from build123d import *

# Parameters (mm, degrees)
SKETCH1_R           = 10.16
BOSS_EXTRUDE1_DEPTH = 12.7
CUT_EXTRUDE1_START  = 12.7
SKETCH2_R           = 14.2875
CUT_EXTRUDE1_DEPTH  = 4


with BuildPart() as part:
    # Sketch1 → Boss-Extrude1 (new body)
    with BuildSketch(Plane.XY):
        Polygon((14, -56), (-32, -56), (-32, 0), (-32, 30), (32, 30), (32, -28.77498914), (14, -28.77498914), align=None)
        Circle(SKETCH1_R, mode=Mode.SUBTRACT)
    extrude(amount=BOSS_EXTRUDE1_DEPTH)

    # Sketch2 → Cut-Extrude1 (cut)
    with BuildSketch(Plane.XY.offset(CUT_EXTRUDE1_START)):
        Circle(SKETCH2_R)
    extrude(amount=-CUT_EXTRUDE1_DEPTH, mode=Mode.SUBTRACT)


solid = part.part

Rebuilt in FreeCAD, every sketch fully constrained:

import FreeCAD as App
import Part
import Sketcher
from FreeCAD import Vector
Q = App.Units.Quantity


def add_polygon(sketch, points):
    """Adds a closed chain of lines whose ends are joined by coincident constraints."""
    first, n = sketch.GeometryCount, len(points)
    for a, b in zip(points, points[1:] + points[:1]):
        sketch.addGeometry(Part.LineSegment(App.Vector(*a, 0), App.Vector(*b, 0)), False)
    for i in range(n):
        sketch.addConstraint(Sketcher.Constraint("Coincident", first + i, 2, first + (i + 1) % n, 1))

doc = App.newDocument("Part")
params = doc.addObject("Spreadsheet::Sheet", "Params")
for row, (alias, value) in enumerate([
    ("sketch1_diameter", "20.32 mm"),
    ("sketch1_width", "46 mm"),
    ("sketch1_width2", "18 mm"),
    ("sketch1_height", "86 mm"),
    ("pad1_length", "12.7 mm"),
    ("pocket1_length", "4 mm"),
], start=1):
    params.set(f"A{row}", alias)
    params.set(f"B{row}", "=" + value)
    params.setAlias(f"B{row}", alias)

body = doc.addObject("PartDesign::Body", "Body")

# Sketch on XY plane
sketch1 = body.newObject("Sketcher::SketchObject", "Sketch")
sketch1.AttachmentSupport = (doc.getObject("XY_Plane"), [""])
sketch1.MapMode = "FlatFace"
add_polygon(sketch1, [(-32, -56), (14, -56), (14, -29), (32, -29), (32, 30), (-32, 30)])  # lines 0-5
sketch1.addGeometry(Part.Circle(Vector(0, 0, 0), Vector(0, 0, 1), 10), False)  # 6
sketch1.addConstraint([
    Sketcher.Constraint("Horizontal", 0),
    Sketcher.Constraint("Vertical", 1),
    Sketcher.Constraint("Horizontal", 2),
    Sketcher.Constraint("Vertical", 3),
    Sketcher.Constraint("Horizontal", 4),
    Sketcher.Constraint("Vertical", 5),
    Sketcher.Constraint("Coincident", 6, 3, -1, 1),
    Sketcher.Constraint("Diameter", 6, Q("20.32 mm")),
    Sketcher.Constraint("DistanceX", 0, 1, 0, 2, Q("46 mm")),
    Sketcher.Constraint("DistanceX", 2, 1, 2, 2, Q("18 mm")),
    Sketcher.Constraint("DistanceY", 5, 2, 5, 1, Q("86 mm")),
    Sketcher.Constraint("DistanceX", -1, 1, 0, 2, Q("14 mm")),
    Sketcher.Constraint("DistanceY", 0, 2, -1, 1, Q("56 mm")),
    Sketcher.Constraint("DistanceY", 1, 1, 1, 2, Q("27.225011 mm")),
])
sketch1.setExpression("Constraints[13]", "Params.sketch1_diameter")
sketch1.setExpression("Constraints[14]", "Params.sketch1_width")
sketch1.setExpression("Constraints[15]", "Params.sketch1_width2")
sketch1.setExpression("Constraints[16]", "Params.sketch1_height")
pad1 = body.newObject("PartDesign::Pad", "Pad")
pad1.Profile = sketch1
pad1.setExpression("Length", "Params.pad1_length")

# Sketch on XY plane
sketch2 = body.newObject("Sketcher::SketchObject", "Sketch001")
sketch2.AttachmentSupport = (doc.getObject("XY_Plane"), [""])
sketch2.MapMode = "FlatFace"
sketch2.AttachmentOffset = App.Placement(Vector(0, 0, 12.7), App.Rotation())
sketch2.addGeometry(Part.Circle(Vector(0, 0, 0), Vector(0, 0, 1), 14), False)
sketch2.addConstraint([
    Sketcher.Constraint("Coincident", 0, 3, -1, 1),
    Sketcher.Constraint("Diameter", 0, Q("28.575 mm")),
])
pocket1 = body.newObject("PartDesign::Pocket", "Pocket")
pocket1.Profile = sketch2
pocket1.setExpression("Length", "Params.pocket1_length")

doc.recompute()
